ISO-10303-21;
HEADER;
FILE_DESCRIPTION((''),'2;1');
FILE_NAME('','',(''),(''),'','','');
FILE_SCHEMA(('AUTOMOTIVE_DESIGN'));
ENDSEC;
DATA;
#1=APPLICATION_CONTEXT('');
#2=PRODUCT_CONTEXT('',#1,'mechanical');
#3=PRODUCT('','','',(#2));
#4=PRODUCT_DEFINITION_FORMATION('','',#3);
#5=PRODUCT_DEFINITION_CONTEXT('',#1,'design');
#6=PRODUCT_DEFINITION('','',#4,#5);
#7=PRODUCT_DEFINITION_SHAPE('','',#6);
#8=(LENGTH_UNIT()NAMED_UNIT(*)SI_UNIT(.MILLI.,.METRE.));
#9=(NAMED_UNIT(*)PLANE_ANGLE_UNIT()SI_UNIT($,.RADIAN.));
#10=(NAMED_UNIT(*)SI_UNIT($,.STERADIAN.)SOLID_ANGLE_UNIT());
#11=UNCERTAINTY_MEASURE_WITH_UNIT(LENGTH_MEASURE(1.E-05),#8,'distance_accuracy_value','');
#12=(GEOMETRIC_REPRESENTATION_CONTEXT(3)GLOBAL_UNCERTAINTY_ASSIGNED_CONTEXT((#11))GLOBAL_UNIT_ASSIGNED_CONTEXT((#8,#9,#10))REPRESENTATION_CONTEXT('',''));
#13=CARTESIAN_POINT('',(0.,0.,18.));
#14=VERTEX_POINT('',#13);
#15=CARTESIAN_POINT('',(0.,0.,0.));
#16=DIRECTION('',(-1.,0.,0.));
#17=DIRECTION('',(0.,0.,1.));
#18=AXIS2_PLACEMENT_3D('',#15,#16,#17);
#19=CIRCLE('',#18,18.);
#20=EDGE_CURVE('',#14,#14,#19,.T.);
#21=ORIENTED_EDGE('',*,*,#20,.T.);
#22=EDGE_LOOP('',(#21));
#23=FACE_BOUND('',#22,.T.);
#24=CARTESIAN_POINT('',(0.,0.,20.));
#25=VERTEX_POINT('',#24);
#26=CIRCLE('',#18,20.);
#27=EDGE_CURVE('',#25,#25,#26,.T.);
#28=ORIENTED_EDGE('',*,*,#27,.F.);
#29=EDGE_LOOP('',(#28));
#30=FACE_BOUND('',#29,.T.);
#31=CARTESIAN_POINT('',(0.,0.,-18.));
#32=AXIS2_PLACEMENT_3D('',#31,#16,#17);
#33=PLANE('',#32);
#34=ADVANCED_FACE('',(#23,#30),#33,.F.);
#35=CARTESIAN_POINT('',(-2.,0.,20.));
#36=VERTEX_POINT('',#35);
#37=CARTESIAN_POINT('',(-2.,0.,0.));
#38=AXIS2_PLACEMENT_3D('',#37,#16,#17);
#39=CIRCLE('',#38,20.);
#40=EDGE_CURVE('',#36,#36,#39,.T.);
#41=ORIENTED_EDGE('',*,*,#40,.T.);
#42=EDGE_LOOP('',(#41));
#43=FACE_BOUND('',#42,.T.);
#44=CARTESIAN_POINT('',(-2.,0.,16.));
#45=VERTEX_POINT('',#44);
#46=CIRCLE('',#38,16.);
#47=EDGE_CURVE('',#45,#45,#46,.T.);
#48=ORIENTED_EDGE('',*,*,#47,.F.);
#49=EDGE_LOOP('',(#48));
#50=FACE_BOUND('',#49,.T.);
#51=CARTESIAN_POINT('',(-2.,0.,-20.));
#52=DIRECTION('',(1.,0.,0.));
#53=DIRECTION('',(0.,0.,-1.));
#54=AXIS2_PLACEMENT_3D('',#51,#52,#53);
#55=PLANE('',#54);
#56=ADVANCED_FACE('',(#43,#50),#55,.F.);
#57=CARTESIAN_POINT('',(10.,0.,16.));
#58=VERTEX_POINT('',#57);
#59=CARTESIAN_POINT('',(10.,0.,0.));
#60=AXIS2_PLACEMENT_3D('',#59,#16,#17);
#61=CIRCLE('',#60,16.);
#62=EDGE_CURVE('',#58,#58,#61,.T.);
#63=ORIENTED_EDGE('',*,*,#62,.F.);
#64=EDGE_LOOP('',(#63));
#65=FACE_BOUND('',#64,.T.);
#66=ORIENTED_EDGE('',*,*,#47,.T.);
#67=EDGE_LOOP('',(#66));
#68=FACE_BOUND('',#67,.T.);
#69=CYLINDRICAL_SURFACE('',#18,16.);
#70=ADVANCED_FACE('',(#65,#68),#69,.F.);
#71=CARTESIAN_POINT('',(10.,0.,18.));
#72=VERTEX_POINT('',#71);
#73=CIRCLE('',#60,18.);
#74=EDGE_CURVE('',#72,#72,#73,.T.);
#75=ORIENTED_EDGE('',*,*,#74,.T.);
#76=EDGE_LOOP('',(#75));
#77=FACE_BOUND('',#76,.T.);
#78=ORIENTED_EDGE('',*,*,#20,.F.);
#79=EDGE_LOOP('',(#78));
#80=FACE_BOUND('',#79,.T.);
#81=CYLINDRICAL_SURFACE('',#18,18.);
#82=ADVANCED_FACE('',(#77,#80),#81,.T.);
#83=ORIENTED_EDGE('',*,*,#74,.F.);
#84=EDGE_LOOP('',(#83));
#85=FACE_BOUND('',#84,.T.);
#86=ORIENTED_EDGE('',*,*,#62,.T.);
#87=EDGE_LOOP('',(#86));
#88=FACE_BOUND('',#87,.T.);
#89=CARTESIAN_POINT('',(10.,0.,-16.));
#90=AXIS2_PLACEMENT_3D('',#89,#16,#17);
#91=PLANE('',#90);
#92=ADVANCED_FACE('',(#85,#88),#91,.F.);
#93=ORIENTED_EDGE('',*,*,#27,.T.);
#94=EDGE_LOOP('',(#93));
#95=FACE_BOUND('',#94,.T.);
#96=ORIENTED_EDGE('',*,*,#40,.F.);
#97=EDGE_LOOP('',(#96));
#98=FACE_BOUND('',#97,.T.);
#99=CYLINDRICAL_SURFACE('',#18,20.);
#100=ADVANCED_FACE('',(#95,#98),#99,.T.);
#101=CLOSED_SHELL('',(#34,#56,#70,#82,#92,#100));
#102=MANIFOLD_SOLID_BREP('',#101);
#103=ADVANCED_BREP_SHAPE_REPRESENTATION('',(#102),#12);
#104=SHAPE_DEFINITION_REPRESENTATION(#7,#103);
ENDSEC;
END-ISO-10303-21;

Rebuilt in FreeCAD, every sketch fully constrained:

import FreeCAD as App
import Part
import Sketcher
Q = App.Units.Quantity

doc = App.newDocument("Part")
body = doc.addObject("PartDesign::Body", "Body")

# Sketch on XZ plane
sketch1 = body.newObject("Sketcher::SketchObject", "Sketch")
sketch1.AttachmentSupport = (doc.getObject("XZ_Plane"), [""])
sketch1.MapMode = "FlatFace"
sketch1.addGeometry(Part.LineSegment(App.Vector(-2, -16, 0), App.Vector(10, -16, 0)), False)
sketch1.addGeometry(Part.LineSegment(App.Vector(10, -16, 0), App.Vector(10, -18, 0)), False)
sketch1.addGeometry(Part.LineSegment(App.Vector(10, -18, 0), App.Vector(0, -18, 0)), False)
sketch1.addGeometry(Part.LineSegment(App.Vector(0, -18, 0), App.Vector(0, -20, 0)), False)
sketch1.addGeometry(Part.LineSegment(App.Vector(0, -20, 0), App.Vector(-2, -20, 0)), False)
sketch1.addGeometry(Part.LineSegment(App.Vector(-2, -20, 0), App.Vector(-2, -16, 0)), False)
sketch1.addConstraint(Sketcher.Constraint("Coincident", 0, 2, 1, 1))
sketch1.addConstraint(Sketcher.Constraint("Coincident", 1, 2, 2, 1))
sketch1.addConstraint(Sketcher.Constraint("Coincident", 2, 2, 3, 1))
sketch1.addConstraint(Sketcher.Constraint("Coincident", 3, 2, 4, 1))
sketch1.addConstraint(Sketcher.Constraint("Coincident", 4, 2, 5, 1))
sketch1.addConstraint(Sketcher.Constraint("Coincident", 5, 2, 0, 1))
sketch1.addConstraint(Sketcher.Constraint("Horizontal", 0))
sketch1.addConstraint(Sketcher.Constraint("Vertical", 1))
sketch1.addConstraint(Sketcher.Constraint("Horizontal", 2))
sketch1.addConstraint(Sketcher.Constraint("Vertical", 3))
sketch1.addConstraint(Sketcher.Constraint("Horizontal", 4))
sketch1.addConstraint(Sketcher.Constraint("Vertical", 5))
sketch1.addConstraint(Sketcher.Constraint("PointOnObject", 2, 2, -2))
sketch1.addConstraint(Sketcher.Constraint("Equal", 4, 1))
sketch1.addConstraint(Sketcher.Constraint("Equal", 1, 3))
sketch1.addConstraint(Sketcher.Constraint("DistanceX", 0, 1, 0, 2, Q("12 mm")))
sketch1.addConstraint(Sketcher.Constraint("DistanceX", 2, 2, 2, 1, Q("10 mm")))
sketch1.addConstraint(Sketcher.Constraint("DistanceY", 0, 2, -1, 1, Q("16 mm")))
revolution = body.newObject("PartDesign::Revolution", "Revolution")
revolution.Profile = sketch1
revolution.ReferenceAxis = (sketch1, ["H_Axis"])
revolution.Angle = 360

doc.recompute()
